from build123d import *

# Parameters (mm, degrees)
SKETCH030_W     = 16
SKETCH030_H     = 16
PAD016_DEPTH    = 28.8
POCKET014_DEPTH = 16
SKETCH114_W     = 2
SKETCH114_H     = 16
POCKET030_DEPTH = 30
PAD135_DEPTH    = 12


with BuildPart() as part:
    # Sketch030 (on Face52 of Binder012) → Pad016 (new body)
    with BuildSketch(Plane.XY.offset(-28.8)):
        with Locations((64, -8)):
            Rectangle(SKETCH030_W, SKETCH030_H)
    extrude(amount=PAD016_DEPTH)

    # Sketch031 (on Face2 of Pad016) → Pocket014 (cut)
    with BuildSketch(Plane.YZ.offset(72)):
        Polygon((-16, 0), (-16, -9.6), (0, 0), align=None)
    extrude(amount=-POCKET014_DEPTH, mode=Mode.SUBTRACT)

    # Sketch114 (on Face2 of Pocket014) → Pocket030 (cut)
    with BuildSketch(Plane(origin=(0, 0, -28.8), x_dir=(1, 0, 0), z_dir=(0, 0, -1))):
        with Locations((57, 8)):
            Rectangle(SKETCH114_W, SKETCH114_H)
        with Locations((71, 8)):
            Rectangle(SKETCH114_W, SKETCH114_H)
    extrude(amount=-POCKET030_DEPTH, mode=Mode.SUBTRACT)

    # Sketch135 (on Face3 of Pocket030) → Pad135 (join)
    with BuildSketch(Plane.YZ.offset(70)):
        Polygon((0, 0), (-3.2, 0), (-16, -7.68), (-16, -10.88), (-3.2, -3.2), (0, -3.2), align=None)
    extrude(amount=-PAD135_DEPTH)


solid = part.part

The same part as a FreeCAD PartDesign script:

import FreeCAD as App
import Part
import Sketcher
from FreeCAD import Vector
Q = App.Units.Quantity


def add_polygon(sketch, points):
    """Adds a closed chain of lines whose ends are joined by coincident constraints."""
    first, n = sketch.GeometryCount, len(points)
    for a, b in zip(points, points[1:] + points[:1]):
        sketch.addGeometry(Part.LineSegment(App.Vector(*a, 0), App.Vector(*b, 0)), False)
    for i in range(n):
        sketch.addConstraint(Sketcher.Constraint("Coincident", first + i, 2, first + (i + 1) % n, 1))

doc = App.newDocument("Part")
body = doc.addObject("PartDesign::Body", "Body")

# Sketch on XY plane
sketch1 = body.newObject("Sketcher::SketchObject", "Sketch")
sketch1.AttachmentSupport = (doc.getObject("XY_Plane"), [""])
sketch1.MapMode = "FlatFace"
sketch1.AttachmentOffset = App.Placement(Vector(0, 0, -28.8), App.Rotation())
add_polygon(sketch1, [(56, 0), (56, -16), (72, -16), (72, 0)])  # lines 0-3
sketch1.addConstraint([
    Sketcher.Constraint("Vertical", 0),
    Sketcher.Constraint("Horizontal", 1),
    Sketcher.Constraint("Vertical", 2),
    Sketcher.Constraint("Horizontal", 3),
    Sketcher.Constraint("PointOnObject", 2, 2, -1),
    Sketcher.Constraint("Equal", 3, 0),
    Sketcher.Constraint("DistanceX", 1, 1, 1, 2, Q("16 mm")),
    Sketcher.Constraint("DistanceX", -1, 1, 0, 2, Q("56 mm")),
])
pad1 = body.newObject("PartDesign::Pad", "Pad")
pad1.Profile = sketch1
pad1.Length = 28.8

# Sketch on YZ plane
sketch2 = body.newObject("Sketcher::SketchObject", "Sketch001")
sketch2.AttachmentSupport = (doc.getObject("YZ_Plane"), [""])
sketch2.MapMode = "FlatFace"
sketch2.AttachmentOffset = App.Placement(Vector(0, 0, 72), App.Rotation())
add_polygon(sketch2, [(-16, 0), (-16, -9.6), (0, 0)])  # lines 0-2
sketch2.addConstraint([
    Sketcher.Constraint("Vertical", 0),
    Sketcher.Constraint("Horizontal", 2),
    Sketcher.Constraint("Coincident", 1, 2, -1, 1),
    Sketcher.Constraint("DistanceX", 2, 2, 2, 1, Q("16 mm")),
    Sketcher.Constraint("DistanceY", 0, 2, 0, 1, Q("9.6 mm")),
])
pocket1 = body.newObject("PartDesign::Pocket", "Pocket")
pocket1.Profile = sketch2
pocket1.Length = 16

# Sketch on XY plane
sketch3 = body.newObject("Sketcher::SketchObject", "Sketch002")
sketch3.AttachmentSupport = (doc.getObject("XY_Plane"), [""])
sketch3.MapMode = "FlatFace"
sketch3.AttachmentOffset = App.Placement(Vector(0, 0, -28.8), App.Rotation())
add_polygon(sketch3, [(56, -16), (56, 0), (58, 0), (58, -16)])  # lines 0-3
add_polygon(sketch3, [(70, -16), (70, 0), (72, 0), (72, -16)])  # lines 4-7
sketch3.addConstraint([
    Sketcher.Constraint("Vertical", 0),
    Sketcher.Constraint("Horizontal", 1),
    Sketcher.Constraint("Vertical", 2),
    Sketcher.Constraint("Horizontal", 3),
    Sketcher.Constraint("Vertical", 4),
    Sketcher.Constraint("Horizontal", 5),
    Sketcher.Constraint("Vertical", 6),
    Sketcher.Constraint("Horizontal", 7),
    Sketcher.Constraint("PointOnObject", 0, 2, -1),
    Sketcher.Constraint("PointOnObject", 4, 2, -1),
    Sketcher.Constraint("Horizontal", 3, 2, 6, 2),
    Sketcher.Constraint("Equal", 3, 5),
    Sketcher.Constraint("DistanceX", 1, 1, 1, 2, Q("2 mm")),
    Sketcher.Constraint("DistanceY", 0, 1, 0, 2, Q("16 mm")),
    Sketcher.Constraint("DistanceX", -1, 1, 0, 2, Q("56 mm")),
    Sketcher.Constraint("DistanceX", -1, 1, 4, 2, Q("70 mm")),
])
pocket2 = body.newObject("PartDesign::Pocket", "Pocket001")
pocket2.Profile = sketch3
pocket2.Length = 30
pocket2.Reversed = True

# Sketch on YZ plane
sketch4 = body.newObject("Sketcher::SketchObject", "Sketch003")
sketch4.AttachmentSupport = (doc.getObject("YZ_Plane"), [""])
sketch4.MapMode = "FlatFace"
sketch4.AttachmentOffset = App.Placement(Vector(0, 0, 70), App.Rotation())
add_polygon(sketch4, [(0, 0), (-3.2, 0), (-16, -7.68), (-16, -10.88), (-3.2, -3.2), (0, -3.2)])  # lines 0-5
sketch4.addConstraint([
    Sketcher.Constraint("Horizontal", 0),
    Sketcher.Constraint("Vertical", 2),
    Sketcher.Constraint("Horizontal", 4),
    Sketcher.Constraint("Vertical", 5),
    Sketcher.Constraint("Coincident", 5, 2, -1, 1),
    Sketcher.Constraint("Parallel", 1, 3),
    Sketcher.Constraint("Vertical", 0, 2, 3, 2),
    Sketcher.Constraint("Equal", 4, 2),
    Sketcher.Constraint("DistanceX", 0, 2, 0, 1, Q("3.2 mm")),
    Sketcher.Constraint("DistanceX", 1, 2, -1, 1, Q("16 mm")),
    Sketcher.Constraint("DistanceY", 1, 2, -1, 1, Q("7.68 mm")),
])
pad2 = body.newObject("PartDesign::Pad", "Pad001")
pad2.Profile = sketch4
pad2.Length = 12
pad2.Reversed = True

doc.recompute()
